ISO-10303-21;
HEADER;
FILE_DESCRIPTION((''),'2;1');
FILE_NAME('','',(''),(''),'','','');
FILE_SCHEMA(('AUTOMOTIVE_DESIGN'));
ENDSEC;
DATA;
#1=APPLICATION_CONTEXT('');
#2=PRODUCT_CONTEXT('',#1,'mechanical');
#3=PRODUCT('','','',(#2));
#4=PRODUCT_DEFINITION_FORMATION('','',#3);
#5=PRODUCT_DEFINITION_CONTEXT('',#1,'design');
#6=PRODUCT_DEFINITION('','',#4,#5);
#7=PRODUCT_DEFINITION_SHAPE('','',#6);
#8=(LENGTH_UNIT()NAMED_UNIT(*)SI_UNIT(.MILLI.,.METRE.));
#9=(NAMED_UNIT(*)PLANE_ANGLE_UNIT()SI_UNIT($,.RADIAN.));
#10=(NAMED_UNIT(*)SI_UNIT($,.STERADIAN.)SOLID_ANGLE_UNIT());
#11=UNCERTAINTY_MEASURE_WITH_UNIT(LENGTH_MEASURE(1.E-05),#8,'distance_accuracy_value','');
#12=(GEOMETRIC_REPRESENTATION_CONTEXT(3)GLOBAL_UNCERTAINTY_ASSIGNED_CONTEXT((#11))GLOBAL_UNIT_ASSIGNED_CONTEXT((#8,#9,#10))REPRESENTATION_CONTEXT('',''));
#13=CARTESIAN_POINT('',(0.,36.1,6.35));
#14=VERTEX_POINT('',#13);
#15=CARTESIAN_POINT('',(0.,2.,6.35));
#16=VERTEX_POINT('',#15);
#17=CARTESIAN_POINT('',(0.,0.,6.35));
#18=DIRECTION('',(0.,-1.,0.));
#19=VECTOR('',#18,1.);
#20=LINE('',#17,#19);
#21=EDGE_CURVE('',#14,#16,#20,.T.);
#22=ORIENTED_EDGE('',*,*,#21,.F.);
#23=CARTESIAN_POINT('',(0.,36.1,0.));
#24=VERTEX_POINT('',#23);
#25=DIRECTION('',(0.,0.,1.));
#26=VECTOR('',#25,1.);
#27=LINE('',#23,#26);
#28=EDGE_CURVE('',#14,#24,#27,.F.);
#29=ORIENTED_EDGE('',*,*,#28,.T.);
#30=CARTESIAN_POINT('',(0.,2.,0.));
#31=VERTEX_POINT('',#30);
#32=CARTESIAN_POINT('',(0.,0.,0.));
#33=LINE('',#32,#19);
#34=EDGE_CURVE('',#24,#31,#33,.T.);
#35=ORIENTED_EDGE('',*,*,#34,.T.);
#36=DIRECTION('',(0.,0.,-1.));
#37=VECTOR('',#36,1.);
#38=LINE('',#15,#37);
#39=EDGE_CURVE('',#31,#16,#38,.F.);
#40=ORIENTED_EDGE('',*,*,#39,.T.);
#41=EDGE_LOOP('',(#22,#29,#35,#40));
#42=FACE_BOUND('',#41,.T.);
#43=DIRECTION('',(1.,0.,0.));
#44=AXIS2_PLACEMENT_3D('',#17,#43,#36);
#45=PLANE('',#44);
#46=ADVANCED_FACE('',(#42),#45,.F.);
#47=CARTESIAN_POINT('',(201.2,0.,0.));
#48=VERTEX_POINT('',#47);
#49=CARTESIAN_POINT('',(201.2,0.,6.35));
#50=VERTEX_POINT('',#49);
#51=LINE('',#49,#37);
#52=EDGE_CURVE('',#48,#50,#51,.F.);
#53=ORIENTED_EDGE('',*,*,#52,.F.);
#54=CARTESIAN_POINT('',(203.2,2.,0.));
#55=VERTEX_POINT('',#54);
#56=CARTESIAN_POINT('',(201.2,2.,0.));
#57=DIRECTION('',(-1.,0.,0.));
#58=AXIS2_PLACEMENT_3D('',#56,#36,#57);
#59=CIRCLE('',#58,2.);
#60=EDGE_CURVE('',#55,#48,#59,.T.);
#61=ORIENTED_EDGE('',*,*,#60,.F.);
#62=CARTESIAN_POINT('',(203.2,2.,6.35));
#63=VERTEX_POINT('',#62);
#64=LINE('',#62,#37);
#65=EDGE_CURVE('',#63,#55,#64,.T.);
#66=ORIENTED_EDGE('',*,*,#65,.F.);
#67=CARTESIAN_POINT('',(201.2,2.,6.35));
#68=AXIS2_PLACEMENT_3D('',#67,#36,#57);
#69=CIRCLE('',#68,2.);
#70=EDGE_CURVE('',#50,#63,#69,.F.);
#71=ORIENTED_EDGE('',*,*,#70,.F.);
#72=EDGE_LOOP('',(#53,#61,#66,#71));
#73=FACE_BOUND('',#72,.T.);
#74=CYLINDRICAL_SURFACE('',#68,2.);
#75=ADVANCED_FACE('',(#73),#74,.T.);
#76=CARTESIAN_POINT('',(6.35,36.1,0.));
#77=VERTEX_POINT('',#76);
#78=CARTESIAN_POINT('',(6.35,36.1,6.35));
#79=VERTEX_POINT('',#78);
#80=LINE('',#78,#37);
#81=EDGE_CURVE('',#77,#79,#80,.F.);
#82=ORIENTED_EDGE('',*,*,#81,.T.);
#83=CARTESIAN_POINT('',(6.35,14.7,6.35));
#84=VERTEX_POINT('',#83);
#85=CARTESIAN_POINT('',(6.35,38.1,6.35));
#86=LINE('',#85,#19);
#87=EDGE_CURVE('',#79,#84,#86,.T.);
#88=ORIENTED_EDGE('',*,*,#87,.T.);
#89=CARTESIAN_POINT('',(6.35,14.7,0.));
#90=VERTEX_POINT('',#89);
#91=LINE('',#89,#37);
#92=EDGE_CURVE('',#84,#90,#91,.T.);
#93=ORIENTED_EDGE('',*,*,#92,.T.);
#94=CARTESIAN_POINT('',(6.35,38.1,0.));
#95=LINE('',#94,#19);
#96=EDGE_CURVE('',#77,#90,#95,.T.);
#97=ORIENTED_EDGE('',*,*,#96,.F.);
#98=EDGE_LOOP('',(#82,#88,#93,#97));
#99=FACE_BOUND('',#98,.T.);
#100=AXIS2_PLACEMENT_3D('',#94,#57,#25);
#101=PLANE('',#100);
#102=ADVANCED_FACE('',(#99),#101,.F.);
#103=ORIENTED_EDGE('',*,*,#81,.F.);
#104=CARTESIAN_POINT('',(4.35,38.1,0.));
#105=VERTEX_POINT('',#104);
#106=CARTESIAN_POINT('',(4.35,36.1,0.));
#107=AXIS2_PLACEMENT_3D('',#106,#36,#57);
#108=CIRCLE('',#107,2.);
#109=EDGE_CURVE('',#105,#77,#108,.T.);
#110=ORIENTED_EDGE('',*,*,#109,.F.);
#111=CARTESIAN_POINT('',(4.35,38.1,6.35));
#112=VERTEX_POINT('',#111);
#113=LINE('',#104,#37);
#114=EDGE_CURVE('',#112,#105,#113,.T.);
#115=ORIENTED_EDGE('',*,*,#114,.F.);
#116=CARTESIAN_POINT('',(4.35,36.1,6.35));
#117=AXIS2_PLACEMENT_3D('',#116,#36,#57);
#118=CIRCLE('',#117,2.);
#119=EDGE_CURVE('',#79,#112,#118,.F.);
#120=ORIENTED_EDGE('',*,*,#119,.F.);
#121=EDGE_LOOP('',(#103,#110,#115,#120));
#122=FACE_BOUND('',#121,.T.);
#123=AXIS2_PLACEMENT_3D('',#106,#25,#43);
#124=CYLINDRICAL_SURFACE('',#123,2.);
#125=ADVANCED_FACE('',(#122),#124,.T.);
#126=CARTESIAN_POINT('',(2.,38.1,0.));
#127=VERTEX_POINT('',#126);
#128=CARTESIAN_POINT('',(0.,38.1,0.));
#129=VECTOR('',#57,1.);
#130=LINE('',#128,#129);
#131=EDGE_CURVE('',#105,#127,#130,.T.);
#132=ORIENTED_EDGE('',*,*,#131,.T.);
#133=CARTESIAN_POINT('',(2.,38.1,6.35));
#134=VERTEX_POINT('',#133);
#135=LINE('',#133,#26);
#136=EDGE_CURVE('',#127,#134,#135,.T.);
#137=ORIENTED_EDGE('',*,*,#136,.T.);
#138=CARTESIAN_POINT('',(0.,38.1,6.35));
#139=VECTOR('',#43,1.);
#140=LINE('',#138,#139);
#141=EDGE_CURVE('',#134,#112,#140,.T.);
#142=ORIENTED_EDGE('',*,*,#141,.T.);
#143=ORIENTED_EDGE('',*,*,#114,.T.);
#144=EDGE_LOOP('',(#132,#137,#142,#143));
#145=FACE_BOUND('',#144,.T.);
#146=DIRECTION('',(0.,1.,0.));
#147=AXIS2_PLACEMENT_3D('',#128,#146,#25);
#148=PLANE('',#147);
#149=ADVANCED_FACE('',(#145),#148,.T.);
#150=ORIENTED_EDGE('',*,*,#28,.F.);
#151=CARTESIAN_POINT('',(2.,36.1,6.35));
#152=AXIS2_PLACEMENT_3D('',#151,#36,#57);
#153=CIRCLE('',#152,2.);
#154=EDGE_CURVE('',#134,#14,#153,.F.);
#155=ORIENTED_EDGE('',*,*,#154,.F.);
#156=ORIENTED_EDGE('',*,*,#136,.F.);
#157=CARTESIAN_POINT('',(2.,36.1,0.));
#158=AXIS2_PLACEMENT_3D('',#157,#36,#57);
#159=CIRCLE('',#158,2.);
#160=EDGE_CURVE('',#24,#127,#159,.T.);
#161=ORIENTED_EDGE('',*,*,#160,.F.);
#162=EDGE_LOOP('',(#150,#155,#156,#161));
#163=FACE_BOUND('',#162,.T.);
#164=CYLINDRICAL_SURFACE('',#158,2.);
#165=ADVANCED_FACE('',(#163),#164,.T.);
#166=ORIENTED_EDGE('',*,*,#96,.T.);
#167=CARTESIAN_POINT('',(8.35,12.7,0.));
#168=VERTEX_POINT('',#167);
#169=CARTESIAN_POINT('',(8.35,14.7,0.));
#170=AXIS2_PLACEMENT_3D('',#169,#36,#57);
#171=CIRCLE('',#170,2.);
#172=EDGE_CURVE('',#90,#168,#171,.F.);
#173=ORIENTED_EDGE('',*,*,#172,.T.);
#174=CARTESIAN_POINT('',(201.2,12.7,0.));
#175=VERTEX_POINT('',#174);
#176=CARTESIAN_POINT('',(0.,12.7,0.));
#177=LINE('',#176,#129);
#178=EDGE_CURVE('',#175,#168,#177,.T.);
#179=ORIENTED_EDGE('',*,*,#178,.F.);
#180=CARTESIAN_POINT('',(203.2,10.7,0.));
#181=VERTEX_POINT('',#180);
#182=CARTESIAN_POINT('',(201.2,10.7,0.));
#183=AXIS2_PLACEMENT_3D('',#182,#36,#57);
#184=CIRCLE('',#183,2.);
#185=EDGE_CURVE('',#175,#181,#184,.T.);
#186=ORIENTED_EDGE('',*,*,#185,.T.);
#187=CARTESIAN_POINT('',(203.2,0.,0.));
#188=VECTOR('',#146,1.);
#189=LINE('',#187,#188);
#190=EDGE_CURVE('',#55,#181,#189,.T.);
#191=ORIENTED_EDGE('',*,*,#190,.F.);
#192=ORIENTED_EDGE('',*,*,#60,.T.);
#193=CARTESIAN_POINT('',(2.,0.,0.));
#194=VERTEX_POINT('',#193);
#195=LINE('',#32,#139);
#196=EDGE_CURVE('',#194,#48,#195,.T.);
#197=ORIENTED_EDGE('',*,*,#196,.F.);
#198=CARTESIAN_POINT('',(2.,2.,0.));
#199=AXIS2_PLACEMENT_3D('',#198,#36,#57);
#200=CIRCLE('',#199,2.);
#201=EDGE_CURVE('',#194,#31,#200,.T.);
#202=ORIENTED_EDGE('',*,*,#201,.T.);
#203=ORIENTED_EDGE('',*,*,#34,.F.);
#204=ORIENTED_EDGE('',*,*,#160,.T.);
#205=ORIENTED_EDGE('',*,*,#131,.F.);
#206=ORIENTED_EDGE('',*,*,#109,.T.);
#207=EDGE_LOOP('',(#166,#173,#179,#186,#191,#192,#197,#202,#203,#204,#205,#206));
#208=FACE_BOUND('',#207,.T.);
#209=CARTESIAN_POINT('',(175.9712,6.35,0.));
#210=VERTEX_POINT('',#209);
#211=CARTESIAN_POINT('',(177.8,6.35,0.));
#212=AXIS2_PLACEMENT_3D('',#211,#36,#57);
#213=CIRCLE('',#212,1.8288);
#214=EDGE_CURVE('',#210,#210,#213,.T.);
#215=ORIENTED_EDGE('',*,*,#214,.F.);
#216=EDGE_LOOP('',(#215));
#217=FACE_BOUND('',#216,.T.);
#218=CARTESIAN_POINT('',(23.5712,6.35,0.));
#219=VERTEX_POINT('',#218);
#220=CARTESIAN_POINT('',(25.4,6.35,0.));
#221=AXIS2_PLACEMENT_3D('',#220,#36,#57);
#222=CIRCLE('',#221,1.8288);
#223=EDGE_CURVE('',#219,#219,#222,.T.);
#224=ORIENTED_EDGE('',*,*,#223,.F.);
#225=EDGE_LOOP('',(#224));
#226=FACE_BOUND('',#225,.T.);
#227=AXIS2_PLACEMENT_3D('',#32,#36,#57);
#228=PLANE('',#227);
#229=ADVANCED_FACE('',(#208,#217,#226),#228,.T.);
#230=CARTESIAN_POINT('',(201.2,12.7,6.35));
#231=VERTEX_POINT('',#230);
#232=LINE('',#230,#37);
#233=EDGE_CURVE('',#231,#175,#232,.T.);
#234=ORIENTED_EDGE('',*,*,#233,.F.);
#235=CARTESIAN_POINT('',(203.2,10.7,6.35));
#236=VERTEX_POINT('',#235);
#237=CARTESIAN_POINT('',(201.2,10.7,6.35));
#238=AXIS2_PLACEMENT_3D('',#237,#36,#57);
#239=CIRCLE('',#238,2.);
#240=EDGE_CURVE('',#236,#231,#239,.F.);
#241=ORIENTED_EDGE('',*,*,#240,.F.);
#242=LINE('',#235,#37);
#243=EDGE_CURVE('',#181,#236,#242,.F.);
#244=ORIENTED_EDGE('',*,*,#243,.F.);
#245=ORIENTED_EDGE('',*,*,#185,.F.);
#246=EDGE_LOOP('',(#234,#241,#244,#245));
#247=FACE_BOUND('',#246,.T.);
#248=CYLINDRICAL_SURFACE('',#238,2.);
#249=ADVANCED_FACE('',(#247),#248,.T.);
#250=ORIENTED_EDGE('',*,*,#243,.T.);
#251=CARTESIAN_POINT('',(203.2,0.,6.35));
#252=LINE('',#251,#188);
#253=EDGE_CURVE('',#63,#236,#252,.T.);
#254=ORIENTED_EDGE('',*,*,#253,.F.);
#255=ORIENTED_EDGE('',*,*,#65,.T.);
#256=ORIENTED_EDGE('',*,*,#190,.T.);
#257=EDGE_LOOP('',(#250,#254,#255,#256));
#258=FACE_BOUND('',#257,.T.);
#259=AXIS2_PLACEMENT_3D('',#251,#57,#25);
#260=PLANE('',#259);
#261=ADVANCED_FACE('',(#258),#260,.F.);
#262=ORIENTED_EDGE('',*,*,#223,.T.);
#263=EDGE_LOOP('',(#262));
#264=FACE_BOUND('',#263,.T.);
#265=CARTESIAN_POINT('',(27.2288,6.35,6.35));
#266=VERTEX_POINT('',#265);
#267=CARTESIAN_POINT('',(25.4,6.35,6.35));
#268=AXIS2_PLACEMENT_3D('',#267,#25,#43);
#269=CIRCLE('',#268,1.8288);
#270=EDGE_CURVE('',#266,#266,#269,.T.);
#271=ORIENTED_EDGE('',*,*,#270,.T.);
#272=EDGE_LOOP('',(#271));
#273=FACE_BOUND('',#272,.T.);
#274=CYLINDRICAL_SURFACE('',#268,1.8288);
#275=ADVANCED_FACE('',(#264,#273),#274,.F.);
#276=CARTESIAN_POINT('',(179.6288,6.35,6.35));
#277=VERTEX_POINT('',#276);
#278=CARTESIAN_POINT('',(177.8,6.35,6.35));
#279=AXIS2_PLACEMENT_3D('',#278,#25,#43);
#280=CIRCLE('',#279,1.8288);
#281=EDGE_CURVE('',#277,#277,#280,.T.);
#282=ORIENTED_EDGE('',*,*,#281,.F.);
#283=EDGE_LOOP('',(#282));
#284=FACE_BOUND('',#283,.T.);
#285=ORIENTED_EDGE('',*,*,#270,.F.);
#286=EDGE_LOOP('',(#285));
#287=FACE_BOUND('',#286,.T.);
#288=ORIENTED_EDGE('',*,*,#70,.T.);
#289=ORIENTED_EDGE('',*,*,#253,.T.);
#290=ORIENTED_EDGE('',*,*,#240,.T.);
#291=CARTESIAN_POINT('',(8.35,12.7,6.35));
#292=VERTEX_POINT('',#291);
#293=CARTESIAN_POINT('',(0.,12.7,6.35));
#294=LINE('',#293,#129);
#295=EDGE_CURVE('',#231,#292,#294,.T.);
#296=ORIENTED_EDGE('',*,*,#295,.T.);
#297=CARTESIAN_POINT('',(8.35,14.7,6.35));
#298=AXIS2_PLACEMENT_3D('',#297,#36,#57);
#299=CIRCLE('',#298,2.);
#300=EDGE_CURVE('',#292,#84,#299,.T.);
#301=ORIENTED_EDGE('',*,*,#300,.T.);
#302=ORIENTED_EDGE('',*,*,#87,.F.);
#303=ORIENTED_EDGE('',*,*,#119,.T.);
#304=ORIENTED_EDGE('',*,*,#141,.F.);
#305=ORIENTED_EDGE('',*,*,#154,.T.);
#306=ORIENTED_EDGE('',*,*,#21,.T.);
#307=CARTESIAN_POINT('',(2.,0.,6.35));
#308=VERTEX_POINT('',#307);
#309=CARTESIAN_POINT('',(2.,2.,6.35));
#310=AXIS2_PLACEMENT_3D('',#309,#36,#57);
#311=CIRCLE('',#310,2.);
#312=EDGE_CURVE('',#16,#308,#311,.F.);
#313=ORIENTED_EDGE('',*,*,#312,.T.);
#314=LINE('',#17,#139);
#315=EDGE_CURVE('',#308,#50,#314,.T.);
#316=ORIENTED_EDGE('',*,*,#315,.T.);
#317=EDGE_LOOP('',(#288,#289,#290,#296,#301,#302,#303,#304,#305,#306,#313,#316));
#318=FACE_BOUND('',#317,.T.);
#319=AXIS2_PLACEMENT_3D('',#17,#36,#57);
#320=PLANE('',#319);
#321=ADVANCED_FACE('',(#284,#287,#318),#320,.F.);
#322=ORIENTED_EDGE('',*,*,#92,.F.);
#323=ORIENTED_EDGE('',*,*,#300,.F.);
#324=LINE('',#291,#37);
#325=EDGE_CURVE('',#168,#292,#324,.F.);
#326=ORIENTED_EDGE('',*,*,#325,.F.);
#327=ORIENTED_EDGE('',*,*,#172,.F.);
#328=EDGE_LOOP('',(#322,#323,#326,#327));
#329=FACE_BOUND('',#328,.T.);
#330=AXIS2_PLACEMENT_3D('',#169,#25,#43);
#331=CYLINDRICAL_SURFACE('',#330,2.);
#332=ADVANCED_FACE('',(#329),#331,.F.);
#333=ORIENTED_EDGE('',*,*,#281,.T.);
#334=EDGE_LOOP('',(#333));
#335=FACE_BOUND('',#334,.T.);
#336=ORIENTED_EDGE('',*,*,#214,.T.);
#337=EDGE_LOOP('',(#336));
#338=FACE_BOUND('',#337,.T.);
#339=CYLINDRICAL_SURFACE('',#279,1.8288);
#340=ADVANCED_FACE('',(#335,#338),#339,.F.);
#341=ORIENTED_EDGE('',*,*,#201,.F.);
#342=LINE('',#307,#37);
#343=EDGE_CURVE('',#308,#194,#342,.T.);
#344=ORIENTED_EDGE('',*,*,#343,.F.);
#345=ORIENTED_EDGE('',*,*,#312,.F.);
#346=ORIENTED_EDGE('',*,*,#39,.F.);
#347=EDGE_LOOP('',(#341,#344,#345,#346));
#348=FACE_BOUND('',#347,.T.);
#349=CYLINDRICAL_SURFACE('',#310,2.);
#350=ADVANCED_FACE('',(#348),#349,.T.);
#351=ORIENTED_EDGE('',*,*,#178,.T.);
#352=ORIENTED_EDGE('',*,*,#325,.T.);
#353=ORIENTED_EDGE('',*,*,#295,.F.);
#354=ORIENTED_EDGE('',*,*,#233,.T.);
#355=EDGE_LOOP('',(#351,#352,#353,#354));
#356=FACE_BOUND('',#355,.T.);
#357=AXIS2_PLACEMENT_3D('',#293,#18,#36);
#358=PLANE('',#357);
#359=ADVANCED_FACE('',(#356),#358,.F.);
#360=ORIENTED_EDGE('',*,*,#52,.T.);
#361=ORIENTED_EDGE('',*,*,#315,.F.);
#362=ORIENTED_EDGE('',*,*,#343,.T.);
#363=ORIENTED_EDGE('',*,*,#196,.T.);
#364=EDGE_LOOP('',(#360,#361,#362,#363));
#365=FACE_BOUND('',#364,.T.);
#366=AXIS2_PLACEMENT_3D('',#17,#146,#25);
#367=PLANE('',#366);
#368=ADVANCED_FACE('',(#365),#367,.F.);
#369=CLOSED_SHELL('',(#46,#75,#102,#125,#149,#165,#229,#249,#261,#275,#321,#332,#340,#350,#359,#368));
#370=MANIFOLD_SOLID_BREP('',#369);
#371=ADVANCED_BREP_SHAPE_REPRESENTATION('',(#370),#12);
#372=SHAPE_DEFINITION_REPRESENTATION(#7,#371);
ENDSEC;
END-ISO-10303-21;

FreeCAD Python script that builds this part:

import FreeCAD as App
import Part
import Sketcher
Q = App.Units.Quantity


def edges_at(feature, points):
    """Names of the edges that pass closest to the given points."""
    edges = feature.Shape.Edges
    near = lambda p: min(range(len(edges)), key=lambda i: edges[i].distToShape(Part.Vertex(*p))[0])
    return sorted({f"Edge{near(p) + 1}" for p in points})

doc = App.newDocument("Part")
params = doc.addObject("Spreadsheet::Sheet", "Params")
for row, (alias, value) in enumerate([
    ("sketch1_width", "8 in"),
    ("sketch1_height", "0.5 in"),
    ("pad1_length", "0.25 in"),
    ("sketch2_width", "0.25 in"),
    ("pad2_length", "1 in"),
    ("fillet_radius", "2 mm"),
    ("sketch3_diameter", "0.144 in"),
    ("hole_diameter", "0.144 in"),
    ("hole_depth", "0.4 in"),
], start=1):
    params.set(f"A{row}", alias)
    params.set(f"B{row}", "=" + value)
    params.setAlias(f"B{row}", alias)

body = doc.addObject("PartDesign::Body", "Body")

# Sketch on XY plane
sketch1 = doc.addObject("Sketcher::SketchObject", "Sketch")
body.addObject(sketch1)
sketch1.AttachmentSupport = (doc.XY_Plane, [""])
sketch1.MapMode = "FlatFace"
sketch1.addGeometry(Part.LineSegment(App.Vector(0, 13, 0), App.Vector(0, 0, 0)), False)
sketch1.addGeometry(Part.LineSegment(App.Vector(0, 0, 0), App.Vector(203, 0, 0)), False)
sketch1.addGeometry(Part.LineSegment(App.Vector(203, 0, 0), App.Vector(203, 13, 0)), False)
sketch1.addGeometry(Part.LineSegment(App.Vector(203, 13, 0), App.Vector(0, 13, 0)), False)
sketch1.addConstraint(Sketcher.Constraint("Coincident", 0, 2, 1, 1))
sketch1.addConstraint(Sketcher.Constraint("Coincident", 1, 2, 2, 1))
sketch1.addConstraint(Sketcher.Constraint("Coincident", 2, 2, 3, 1))
sketch1.addConstraint(Sketcher.Constraint("Coincident", 3, 2, 0, 1))
sketch1.addConstraint(Sketcher.Constraint("Vertical", 0))
sketch1.addConstraint(Sketcher.Constraint("Horizontal", 1))
sketch1.addConstraint(Sketcher.Constraint("Vertical", 2))
sketch1.addConstraint(Sketcher.Constraint("Horizontal", 3))
sketch1.addConstraint(Sketcher.Constraint("Coincident", 0, 2, -1, 1))
sketch1.addConstraint(Sketcher.Constraint("DistanceX", 1, 1, 1, 2, Q("8 in")))
sketch1.addConstraint(Sketcher.Constraint("DistanceY", 0, 2, 0, 1, Q("0.5 in")))
sketch1.setExpression("Constraints[9]", "Params.sketch1_width")
sketch1.setExpression("Constraints[10]", "Params.sketch1_height")
pad1 = doc.addObject("PartDesign::Pad", "Pad")
body.addObject(pad1)
pad1.Profile = sketch1
pad1.setExpression("Length", "Params.pad1_length")

# Sketch on XZ plane
sketch2 = doc.addObject("Sketcher::SketchObject", "Sketch001")
body.addObject(sketch2)
sketch2.AttachmentSupport = (doc.XZ_Plane, [""])
sketch2.MapMode = "FlatFace"
sketch2.AttachmentOffset = App.Placement(App.Vector(0, 0, -0.5 * 25.4), App.Rotation())
sketch2.addGeometry(Part.LineSegment(App.Vector(0, 0, 0), App.Vector(0, 6, 0)), False)
sketch2.addGeometry(Part.LineSegment(App.Vector(0, 6, 0), App.Vector(6, 6, 0)), False)
sketch2.addGeometry(Part.LineSegment(App.Vector(6, 6, 0), App.Vector(6, 0, 0)), False)
sketch2.addGeometry(Part.LineSegment(App.Vector(6, 0, 0), App.Vector(0, 0, 0)), False)
sketch2.addConstraint(Sketcher.Constraint("Coincident", 0, 2, 1, 1))
sketch2.addConstraint(Sketcher.Constraint("Coincident", 1, 2, 2, 1))
sketch2.addConstraint(Sketcher.Constraint("Coincident", 2, 2, 3, 1))
sketch2.addConstraint(Sketcher.Constraint("Coincident", 3, 2, 0, 1))
sketch2.addConstraint(Sketcher.Constraint("Vertical", 0))
sketch2.addConstraint(Sketcher.Constraint("Horizontal", 1))
sketch2.addConstraint(Sketcher.Constraint("Vertical", 2))
sketch2.addConstraint(Sketcher.Constraint("Horizontal", 3))
sketch2.addConstraint(Sketcher.Constraint("Coincident", 3, 2, -1, 1))
sketch2.addConstraint(Sketcher.Constraint("Equal", 3, 0))
sketch2.addConstraint(Sketcher.Constraint("DistanceX", 1, 1, 1, 2, Q("0.25 in")))
sketch2.setExpression("Constraints[10]", "Params.sketch2_width")
pad2 = doc.addObject("PartDesign::Pad", "Pad001")
body.addObject(pad2)
pad2.Profile = sketch2
pad2.setExpression("Length", "Params.pad2_length")
pad2.Reversed = True
doc.recompute()

fillet = doc.addObject("PartDesign::Fillet", "Fillet")
body.addObject(fillet)
fillet.Base = (pad2, edges_at(pad2, [
    (6.35, 12.7, 3.175),
    (0, 38.1, 3.175),
    (6.35, 38.1, 3.175),
    (203.2, 12.7, 3.175),
    (203.2, 0, 3.175),
    (0, 0, 3.175),
]))
fillet.setExpression("Radius", "Params.fillet_radius")

# Sketch on XY plane
sketch3 = doc.addObject("Sketcher::SketchObject", "Sketch002")
body.addObject(sketch3)
sketch3.AttachmentSupport = (doc.XY_Plane, [""])
sketch3.MapMode = "FlatFace"
sketch3.AttachmentOffset = App.Placement(App.Vector(0, 0, 0.25 * 25.4), App.Rotation())
sketch3.addGeometry(Part.Circle(App.Vector(177.8, 6.3, 0), App.Vector(0, 0, 1), 1.8), False)
sketch3.addGeometry(Part.Circle(App.Vector(25.4, 6.3, 0), App.Vector(0, 0, 1), 1.8), False)
sketch3.addConstraint(Sketcher.Constraint("Equal", 0, 1))
sketch3.addConstraint(Sketcher.Constraint("Horizontal", 0, 3, 1, 3))
sketch3.addConstraint(Sketcher.Constraint("Diameter", 0, Q("0.144 in")))
sketch3.addConstraint(Sketcher.Constraint("DistanceX", -1, 1, 0, 3, Q("7 in")))
sketch3.addConstraint(Sketcher.Constraint("DistanceX", -1, 1, 1, 3, Q("1 in")))
sketch3.addConstraint(Sketcher.Constraint("DistanceY", -1, 1, 0, 3, Q("0.25 in")))
sketch3.setExpression("Constraints[2]", "Params.sketch3_diameter")
doc.recompute()
hole = doc.addObject("PartDesign::Hole", "Hole")
body.addObject(hole)
hole.Profile = sketch3
hole.ThreadType = "None"
hole.setExpression("Diameter", "Params.hole_diameter")
hole.DepthType = "Dimension"
hole.setExpression("Depth", "Params.hole_depth")
hole.DrillPoint = "Angled"
hole.DrillPointAngle = 118

doc.recompute()
